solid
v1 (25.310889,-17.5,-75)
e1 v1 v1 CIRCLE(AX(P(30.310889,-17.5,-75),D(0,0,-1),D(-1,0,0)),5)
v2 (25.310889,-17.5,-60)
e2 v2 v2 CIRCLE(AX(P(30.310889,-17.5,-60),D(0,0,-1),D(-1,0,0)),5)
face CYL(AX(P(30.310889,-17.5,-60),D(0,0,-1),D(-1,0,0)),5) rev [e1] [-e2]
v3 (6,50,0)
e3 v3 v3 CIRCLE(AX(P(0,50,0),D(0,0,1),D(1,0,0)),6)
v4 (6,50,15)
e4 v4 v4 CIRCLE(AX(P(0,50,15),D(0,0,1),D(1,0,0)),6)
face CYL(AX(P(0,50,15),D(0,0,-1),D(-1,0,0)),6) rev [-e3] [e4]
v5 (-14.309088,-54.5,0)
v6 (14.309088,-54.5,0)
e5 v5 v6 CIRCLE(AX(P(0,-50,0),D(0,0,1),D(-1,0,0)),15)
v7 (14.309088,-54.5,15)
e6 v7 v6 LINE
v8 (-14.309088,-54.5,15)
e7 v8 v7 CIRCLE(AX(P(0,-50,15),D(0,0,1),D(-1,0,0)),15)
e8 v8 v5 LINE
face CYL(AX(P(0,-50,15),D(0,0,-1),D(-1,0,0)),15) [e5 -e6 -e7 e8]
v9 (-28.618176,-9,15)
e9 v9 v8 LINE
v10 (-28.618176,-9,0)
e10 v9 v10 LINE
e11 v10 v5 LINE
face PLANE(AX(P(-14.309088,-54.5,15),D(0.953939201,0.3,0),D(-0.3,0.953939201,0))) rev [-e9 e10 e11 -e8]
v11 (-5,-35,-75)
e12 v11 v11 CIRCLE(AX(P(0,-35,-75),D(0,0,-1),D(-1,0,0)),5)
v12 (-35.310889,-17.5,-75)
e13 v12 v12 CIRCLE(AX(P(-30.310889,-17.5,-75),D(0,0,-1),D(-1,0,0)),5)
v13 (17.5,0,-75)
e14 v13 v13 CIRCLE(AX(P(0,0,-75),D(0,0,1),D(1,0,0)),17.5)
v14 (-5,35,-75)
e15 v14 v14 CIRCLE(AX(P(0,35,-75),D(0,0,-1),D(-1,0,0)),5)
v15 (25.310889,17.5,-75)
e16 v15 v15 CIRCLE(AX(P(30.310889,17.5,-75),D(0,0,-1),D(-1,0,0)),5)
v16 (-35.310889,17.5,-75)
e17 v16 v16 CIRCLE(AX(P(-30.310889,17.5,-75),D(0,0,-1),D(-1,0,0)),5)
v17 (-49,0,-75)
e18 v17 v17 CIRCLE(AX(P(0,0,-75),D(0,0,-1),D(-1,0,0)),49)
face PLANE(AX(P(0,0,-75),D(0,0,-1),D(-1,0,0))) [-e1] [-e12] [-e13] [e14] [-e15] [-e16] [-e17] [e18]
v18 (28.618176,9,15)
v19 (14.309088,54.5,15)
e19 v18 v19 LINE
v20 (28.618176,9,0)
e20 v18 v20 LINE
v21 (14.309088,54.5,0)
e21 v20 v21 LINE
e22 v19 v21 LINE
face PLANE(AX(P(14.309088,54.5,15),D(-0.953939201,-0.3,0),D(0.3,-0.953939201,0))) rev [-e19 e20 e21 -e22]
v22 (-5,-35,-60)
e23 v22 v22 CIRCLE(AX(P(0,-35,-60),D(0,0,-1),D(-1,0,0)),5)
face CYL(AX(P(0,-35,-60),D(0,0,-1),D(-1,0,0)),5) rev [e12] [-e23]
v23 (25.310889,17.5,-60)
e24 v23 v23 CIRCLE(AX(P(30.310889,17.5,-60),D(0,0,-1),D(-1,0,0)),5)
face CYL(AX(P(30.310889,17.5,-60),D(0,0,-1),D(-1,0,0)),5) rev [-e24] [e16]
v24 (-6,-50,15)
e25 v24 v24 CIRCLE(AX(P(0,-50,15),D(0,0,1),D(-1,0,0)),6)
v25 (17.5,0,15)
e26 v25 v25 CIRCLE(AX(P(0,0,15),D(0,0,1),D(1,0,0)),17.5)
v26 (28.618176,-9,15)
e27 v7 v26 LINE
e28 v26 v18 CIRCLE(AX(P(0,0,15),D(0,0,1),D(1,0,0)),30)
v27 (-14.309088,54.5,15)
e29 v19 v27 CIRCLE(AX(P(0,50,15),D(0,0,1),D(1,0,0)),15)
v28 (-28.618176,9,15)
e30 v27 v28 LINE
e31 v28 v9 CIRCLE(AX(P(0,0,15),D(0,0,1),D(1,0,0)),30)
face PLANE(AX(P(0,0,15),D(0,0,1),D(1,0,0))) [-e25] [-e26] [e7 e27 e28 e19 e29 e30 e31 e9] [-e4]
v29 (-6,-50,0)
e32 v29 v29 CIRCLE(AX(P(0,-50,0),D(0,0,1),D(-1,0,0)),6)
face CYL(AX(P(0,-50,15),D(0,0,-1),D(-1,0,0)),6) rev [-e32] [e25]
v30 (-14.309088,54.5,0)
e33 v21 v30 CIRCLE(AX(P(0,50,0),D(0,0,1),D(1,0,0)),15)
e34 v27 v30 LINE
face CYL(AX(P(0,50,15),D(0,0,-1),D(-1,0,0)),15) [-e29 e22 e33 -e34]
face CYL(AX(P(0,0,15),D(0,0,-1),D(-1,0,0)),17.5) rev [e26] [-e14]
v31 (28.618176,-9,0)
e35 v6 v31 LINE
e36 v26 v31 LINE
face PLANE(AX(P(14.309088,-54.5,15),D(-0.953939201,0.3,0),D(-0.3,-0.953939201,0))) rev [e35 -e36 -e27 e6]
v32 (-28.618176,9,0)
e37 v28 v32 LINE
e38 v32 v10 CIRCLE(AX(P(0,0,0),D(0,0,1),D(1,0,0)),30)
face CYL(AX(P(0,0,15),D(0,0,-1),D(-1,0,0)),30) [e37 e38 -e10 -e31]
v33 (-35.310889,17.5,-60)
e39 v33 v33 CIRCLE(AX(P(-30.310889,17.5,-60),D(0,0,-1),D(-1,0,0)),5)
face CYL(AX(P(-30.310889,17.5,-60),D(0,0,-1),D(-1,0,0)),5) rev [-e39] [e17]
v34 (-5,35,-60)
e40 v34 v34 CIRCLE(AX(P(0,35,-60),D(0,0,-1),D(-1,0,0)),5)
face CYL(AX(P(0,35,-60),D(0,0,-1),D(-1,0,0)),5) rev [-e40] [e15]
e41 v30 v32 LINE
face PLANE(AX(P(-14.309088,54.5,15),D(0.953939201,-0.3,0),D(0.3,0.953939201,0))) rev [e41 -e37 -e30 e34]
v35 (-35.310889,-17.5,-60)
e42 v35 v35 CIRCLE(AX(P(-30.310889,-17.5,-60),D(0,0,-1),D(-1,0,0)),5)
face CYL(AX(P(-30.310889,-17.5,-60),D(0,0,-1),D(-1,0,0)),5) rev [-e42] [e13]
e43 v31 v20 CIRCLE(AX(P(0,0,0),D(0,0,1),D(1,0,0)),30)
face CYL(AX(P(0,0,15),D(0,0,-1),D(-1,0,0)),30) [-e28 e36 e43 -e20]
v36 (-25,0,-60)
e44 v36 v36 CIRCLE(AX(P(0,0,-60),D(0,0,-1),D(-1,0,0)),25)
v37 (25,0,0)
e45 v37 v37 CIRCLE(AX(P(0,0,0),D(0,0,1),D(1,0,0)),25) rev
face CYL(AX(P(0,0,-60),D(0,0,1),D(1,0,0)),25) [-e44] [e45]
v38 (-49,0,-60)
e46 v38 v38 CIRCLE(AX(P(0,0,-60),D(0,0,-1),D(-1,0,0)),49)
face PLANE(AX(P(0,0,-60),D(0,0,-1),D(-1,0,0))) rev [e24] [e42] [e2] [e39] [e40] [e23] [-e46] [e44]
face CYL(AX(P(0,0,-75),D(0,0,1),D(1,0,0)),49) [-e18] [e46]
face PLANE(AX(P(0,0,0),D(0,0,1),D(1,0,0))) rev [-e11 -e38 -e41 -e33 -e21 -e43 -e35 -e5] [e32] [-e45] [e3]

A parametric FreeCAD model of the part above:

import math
import FreeCAD as App
import Part
import Sketcher

V = App.Vector
Q = App.Units.Quantity

doc = App.newDocument("Part")
body = doc.addObject("PartDesign::Body", "Body")

# Sketch on XY plane
sketch1 = doc.addObject("Sketcher::SketchObject", "Sketch")
body.addObject(sketch1)
sketch1.AttachmentSupport = (doc.XY_Plane, [""])
sketch1.MapMode = "FlatFace"
sketch1.addGeometry(Part.LineSegment(V(29, 9, 0), V(14, 54, 0)), False)
sketch1.addGeometry(Part.ArcOfCircle(Part.Circle(V(0, 50, 0), V(0, 0, 1), 15), math.radians(17), math.radians(163)), False)
sketch1.addGeometry(Part.LineSegment(V(-14, 54, 0), V(-29, 9, 0)), False)
sketch1.addGeometry(Part.ArcOfCircle(Part.Circle(V(0, 0, 0), V(0, 0, 1), 30), math.radians(163), math.radians(197)), False)
sketch1.addGeometry(Part.LineSegment(V(-29, -9, 0), V(-14, -54, 0)), False)
sketch1.addGeometry(Part.ArcOfCircle(Part.Circle(V(0, -50, 0), V(0, 0, 1), 15), math.radians(-163), math.radians(-17)), False)
sketch1.addGeometry(Part.LineSegment(V(14, -54, 0), V(29, -9, 0)), False)
sketch1.addGeometry(Part.ArcOfCircle(Part.Circle(V(0, 0, 0), V(0, 0, 1), 30), math.radians(-17), math.radians(17)), False)
sketch1.addGeometry(Part.Circle(V(0, -50, 0), V(0, 0, 1), 6), False)
sketch1.addGeometry(Part.Circle(V(0, 0, 0), V(0, 0, 1), 18), False)
sketch1.addGeometry(Part.Circle(V(0, 50, 0), V(0, 0, 1), 6), False)
sketch1.addConstraint(Sketcher.Constraint("Tangent", 0, 2, 1, 1))
sketch1.addConstraint(Sketcher.Constraint("Tangent", 1, 2, 2, 1))
sketch1.addConstraint(Sketcher.Constraint("Tangent", 2, 2, 3, 1))
sketch1.addConstraint(Sketcher.Constraint("Tangent", 3, 2, 4, 1))
sketch1.addConstraint(Sketcher.Constraint("Tangent", 4, 2, 5, 1))
sketch1.addConstraint(Sketcher.Constraint("Tangent", 5, 2, 6, 1))
sketch1.addConstraint(Sketcher.Constraint("Tangent", 6, 2, 7, 1))
sketch1.addConstraint(Sketcher.Constraint("Tangent", 7, 2, 0, 1))
sketch1.addConstraint(Sketcher.Constraint("Coincident", 3, 3, -1, 1))
sketch1.addConstraint(Sketcher.Constraint("Coincident", 7, 3, -1, 1))
sketch1.addConstraint(Sketcher.Constraint("Coincident", 9, 3, -1, 1))
sketch1.addConstraint(Sketcher.Constraint("Coincident", 8, 3, 5, 3))
sketch1.addConstraint(Sketcher.Constraint("Coincident", 10, 3, 1, 3))
sketch1.addConstraint(Sketcher.Constraint("Equal", 1, 5))
sketch1.addConstraint(Sketcher.Constraint("Equal", 3, 7))
sketch1.addConstraint(Sketcher.Constraint("Equal", 8, 10))
sketch1.addConstraint(Sketcher.Constraint("Symmetric", 1, 3, 5, 3, -1, 1))
sketch1.addConstraint(Sketcher.Constraint("PointOnObject", 1, 3, -2))
sketch1.addConstraint(Sketcher.Constraint("Diameter", 8, Q("12 mm")))
sketch1.addConstraint(Sketcher.Constraint("Diameter", 9, Q("35 mm")))
sketch1.addConstraint(Sketcher.Constraint("Radius", 1, Q("15 mm")))
sketch1.addConstraint(Sketcher.Constraint("Radius", 3, Q("30 mm")))
sketch1.addConstraint(Sketcher.Constraint("DistanceY", -1, 1, 1, 3, Q("50 mm")))
pad1 = doc.addObject("PartDesign::Pad", "Pad")
body.addObject(pad1)
pad1.Profile = sketch1
pad1.Length = 15

# Sketch on XY plane
sketch2 = doc.addObject("Sketcher::SketchObject", "Sketch001")
body.addObject(sketch2)
sketch2.AttachmentSupport = (doc.XY_Plane, [""])
sketch2.MapMode = "FlatFace"
sketch2.addGeometry(Part.Circle(V(0, 0, 0), V(0, 0, 1), 25), False)
sketch2.addConstraint(Sketcher.Constraint("Coincident", 0, 3, -1, 1))
sketch2.addConstraint(Sketcher.Constraint("Diameter", 0, Q("50 mm")))
pad2 = doc.addObject("PartDesign::Pad", "Pad001")
body.addObject(pad2)
pad2.Profile = sketch2
pad2.Length = 60
pad2.Reversed = True

# Sketch on XY plane
sketch3 = doc.addObject("Sketcher::SketchObject", "Sketch002")
body.addObject(sketch3)
sketch3.AttachmentSupport = (doc.XY_Plane, [""])
sketch3.MapMode = "FlatFace"
sketch3.AttachmentOffset = App.Placement(V(0, 0, -60), App.Rotation())
sketch3.addGeometry(Part.Circle(V(0, 0, 0), V(0, 0, 1), 49), False)
sketch3.addConstraint(Sketcher.Constraint("Coincident", 0, 3, -1, 1))
sketch3.addConstraint(Sketcher.Constraint("Diameter", 0, Q("98 mm")))
pad3 = doc.addObject("PartDesign::Pad", "Pad002")
body.addObject(pad3)
pad3.Profile = sketch3
pad3.Length = 15
pad3.Reversed = True

# Sketch on XY plane
sketch4 = doc.addObject("Sketcher::SketchObject", "Sketch003")
body.addObject(sketch4)
sketch4.AttachmentSupport = (doc.XY_Plane, [""])
sketch4.MapMode = "FlatFace"
sketch4.AttachmentOffset = App.Placement(V(0, 0, -75), App.Rotation())
sketch4.addGeometry(Part.Circle(V(0, 35, 0), V(0, 0, 1), 5), False)
sketch4.addGeometry(Part.Circle(V(-30, 18, 0), V(0, 0, 1), 5), False)
sketch4.addGeometry(Part.Circle(V(-30, -18, 0), V(0, 0, 1), 5), False)
sketch4.addGeometry(Part.Circle(V(0, -35, 0), V(0, 0, 1), 5), False)
sketch4.addGeometry(Part.Circle(V(30, -18, 0), V(0, 0, 1), 5), False)
sketch4.addGeometry(Part.Circle(V(30, 18, 0), V(0, 0, 1), 5), False)
sketch4.addConstraint(Sketcher.Constraint("Equal", 0, 1))
sketch4.addConstraint(Sketcher.Constraint("Equal", 1, 2))
sketch4.addConstraint(Sketcher.Constraint("Equal", 2, 3))
sketch4.addConstraint(Sketcher.Constraint("Equal", 3, 4))
sketch4.addConstraint(Sketcher.Constraint("Equal", 4, 5))
sketch4.addConstraint(Sketcher.Constraint("Symmetric", 0, 3, 3, 3, -1, 1))
sketch4.addConstraint(Sketcher.Constraint("Symmetric", 1, 3, 4, 3, -1, 1))
sketch4.addConstraint(Sketcher.Constraint("Symmetric", 2, 3, 5, 3, -1, 1))
sketch4.addConstraint(Sketcher.Constraint("Symmetric", 2, 3, 4, 3, -2))
sketch4.addConstraint(Sketcher.Constraint("PointOnObject", 0, 3, -2))
sketch4.addConstraint(Sketcher.Constraint("Diameter", 0, Q("10 mm")))
sketch4.addConstraint(Sketcher.Constraint("DistanceY", -1, 1, 0, 3, Q("35 mm")))
sketch4.addConstraint(Sketcher.Constraint("DistanceY", 2, 3, 1, 3, Q("35 mm")))
sketch4.addConstraint(Sketcher.Constraint("DistanceX", 1, 3, -1, 1, Q("30.310889 mm")))
pocket1 = doc.addObject("PartDesign::Pocket", "Pocket")
body.addObject(pocket1)
pocket1.Profile = sketch4
pocket1.Length = 15
pocket1.Reversed = True

# Sketch on XY plane
sketch5 = doc.addObject("Sketcher::SketchObject", "Sketch004")
body.addObject(sketch5)
sketch5.AttachmentSupport = (doc.XY_Plane, [""])
sketch5.MapMode = "FlatFace"
sketch5.addGeometry(Part.Circle(V(0, 0, 0), V(0, 0, 1), 18), False)
sketch5.addConstraint(Sketcher.Constraint("Coincident", 0, 3, -1, 1))
sketch5.addConstraint(Sketcher.Constraint("Diameter", 0, Q("35 mm")))
pocket2 = doc.addObject("PartDesign::Pocket", "Pocket001")
body.addObject(pocket2)
pocket2.Profile = sketch5
pocket2.Type = "ThroughAll"

doc.recompute()
